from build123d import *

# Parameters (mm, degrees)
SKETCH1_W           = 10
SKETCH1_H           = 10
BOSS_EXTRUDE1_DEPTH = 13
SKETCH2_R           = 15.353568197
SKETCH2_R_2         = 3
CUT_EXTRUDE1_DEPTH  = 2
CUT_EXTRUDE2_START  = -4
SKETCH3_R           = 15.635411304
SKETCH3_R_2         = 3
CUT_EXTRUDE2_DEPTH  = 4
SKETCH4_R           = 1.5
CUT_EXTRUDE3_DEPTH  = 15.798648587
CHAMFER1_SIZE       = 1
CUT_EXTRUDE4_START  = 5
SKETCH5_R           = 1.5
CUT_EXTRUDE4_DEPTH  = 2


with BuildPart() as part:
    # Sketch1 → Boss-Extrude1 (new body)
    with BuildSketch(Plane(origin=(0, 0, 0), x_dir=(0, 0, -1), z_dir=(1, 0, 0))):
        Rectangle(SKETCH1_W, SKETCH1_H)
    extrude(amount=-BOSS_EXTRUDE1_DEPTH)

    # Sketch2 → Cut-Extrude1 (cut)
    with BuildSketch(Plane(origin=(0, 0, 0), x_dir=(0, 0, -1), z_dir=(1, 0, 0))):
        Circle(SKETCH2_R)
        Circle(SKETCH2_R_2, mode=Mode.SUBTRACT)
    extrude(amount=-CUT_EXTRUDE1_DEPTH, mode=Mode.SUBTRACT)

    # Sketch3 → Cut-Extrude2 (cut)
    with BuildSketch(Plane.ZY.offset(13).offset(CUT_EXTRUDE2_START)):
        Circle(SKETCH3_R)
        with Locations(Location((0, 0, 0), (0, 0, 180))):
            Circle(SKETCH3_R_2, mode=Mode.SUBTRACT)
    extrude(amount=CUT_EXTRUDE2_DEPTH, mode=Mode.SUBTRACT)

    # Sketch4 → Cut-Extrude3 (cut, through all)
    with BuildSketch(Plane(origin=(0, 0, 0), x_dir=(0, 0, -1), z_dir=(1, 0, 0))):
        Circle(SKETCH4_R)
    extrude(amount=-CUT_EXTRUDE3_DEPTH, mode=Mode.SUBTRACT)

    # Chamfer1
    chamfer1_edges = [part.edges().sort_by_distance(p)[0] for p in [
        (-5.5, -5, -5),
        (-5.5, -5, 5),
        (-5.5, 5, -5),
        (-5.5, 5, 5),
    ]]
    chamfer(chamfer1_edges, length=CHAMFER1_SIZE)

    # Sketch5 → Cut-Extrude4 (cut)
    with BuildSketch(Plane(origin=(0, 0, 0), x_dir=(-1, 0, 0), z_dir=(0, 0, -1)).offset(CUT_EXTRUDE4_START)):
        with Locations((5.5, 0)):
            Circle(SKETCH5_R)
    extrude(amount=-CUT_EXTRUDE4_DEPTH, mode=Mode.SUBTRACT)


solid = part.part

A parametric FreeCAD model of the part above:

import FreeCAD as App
import Part
import Sketcher

V = App.Vector


def edges_at(feature, points):
    """Names of the edges that pass closest to the given points."""
    edges = feature.Shape.Edges
    near = lambda p: min(range(len(edges)), key=lambda i: edges[i].distToShape(Part.Vertex(*p))[0])
    return sorted({f"Edge{near(p) + 1}" for p in points})

doc = App.newDocument("Part")
body = doc.addObject("PartDesign::Body", "Body")

# Sketch on YZ plane
sketch1 = body.newObject("Sketcher::SketchObject", "Sketch")
sketch1.AttachmentSupport = (doc.getObject("YZ_Plane"), [""])
sketch1.MapMode = "FlatFace"
sketch1.addGeometry([
    Part.LineSegment(V(5, 5, 0), V(-5, 5, 0)),
    Part.LineSegment(V(-5, 5, 0), V(-5, -5, 0)),
    Part.LineSegment(V(-5, -5, 0), V(5, -5, 0)),
    Part.LineSegment(V(5, -5, 0), V(5, 5, 0)),
], False)
sketch1.addConstraint([
    Sketcher.Constraint("Coincident", 0, 2, 1, 1),
    Sketcher.Constraint("Coincident", 1, 2, 2, 1),
    Sketcher.Constraint("Coincident", 2, 2, 3, 1),
    Sketcher.Constraint("Coincident", 3, 2, 0, 1),
    Sketcher.Constraint("Horizontal", 0),
    Sketcher.Constraint("Vertical", 1),
    Sketcher.Constraint("Horizontal", 2),
    Sketcher.Constraint("Vertical", 3),
    Sketcher.Constraint("Symmetric", 0, 2, 2, 2, -1, 1),
    Sketcher.Constraint("Equal", 2, 1),
    Sketcher.Constraint("DistanceX", 0, 2, 0, 1, 10.0),
])
pad1 = body.newObject("PartDesign::Pad", "Pad")
pad1.Profile = sketch1
pad1.Length = 13
pad1.Reversed = True

# Sketch on YZ plane
sketch2 = body.newObject("Sketcher::SketchObject", "Sketch001")
sketch2.AttachmentSupport = (doc.getObject("YZ_Plane"), [""])
sketch2.MapMode = "FlatFace"
sketch2.addGeometry([
    Part.Circle(V(0, 0, 0), V(0, 0, 1), 15.353568),
    Part.Circle(V(0, 0, 0), V(0, 0, 1), 3),
], False)
sketch2.addConstraint([
    Sketcher.Constraint("Coincident", 0, 3, -1, 1),
    Sketcher.Constraint("Coincident", 1, 3, -1, 1),
    Sketcher.Constraint("Diameter", 1, 6.0),
    Sketcher.Constraint("Diameter", 0, 30.707136),
])
pocket1 = body.newObject("PartDesign::Pocket", "Pocket")
pocket1.Profile = sketch2
pocket1.Length = 2

# Sketch on YZ plane
sketch3 = body.newObject("Sketcher::SketchObject", "Sketch002")
sketch3.AttachmentSupport = (doc.getObject("YZ_Plane"), [""])
sketch3.MapMode = "FlatFace"
sketch3.AttachmentOffset = App.Placement(V(0, 0, -9), App.Rotation())
sketch3.addGeometry([
    Part.Circle(V(0, 0, 0), V(0, 0, 1), 15.635411),
    Part.Circle(V(0, 0, 0), V(0, 0, 1), 3),
], False)
sketch3.addConstraint([
    Sketcher.Constraint("Coincident", 0, 3, -1, 1),
    Sketcher.Constraint("Coincident", 1, 3, -1, 1),
    Sketcher.Constraint("Diameter", 1, 6.0),
    Sketcher.Constraint("Diameter", 0, 31.270823),
])
pocket2 = body.newObject("PartDesign::Pocket", "Pocket001")
pocket2.Profile = sketch3
pocket2.Length = 4

# Sketch on YZ plane
sketch4 = body.newObject("Sketcher::SketchObject", "Sketch003")
sketch4.AttachmentSupport = (doc.getObject("YZ_Plane"), [""])
sketch4.MapMode = "FlatFace"
sketch4.addGeometry(Part.Circle(V(0, 0, 0), V(0, 0, 1), 1.5), False)
sketch4.addConstraint([
    Sketcher.Constraint("Coincident", 0, 3, -1, 1),
    Sketcher.Constraint("Diameter", 0, 3.0),
])
pocket3 = body.newObject("PartDesign::Pocket", "Pocket002")
pocket3.Profile = sketch4
pocket3.Type = "ThroughAll"
doc.recompute()

chamfer = body.newObject("PartDesign::Chamfer", "Chamfer")
chamfer.Base = (pocket3, edges_at(pocket3, [
    (-5.5, -5, -5),
    (-5.5, -5, 5),
    (-5.5, 5, -5),
    (-5.5, 5, 5),
]))
chamfer.Size = 1

# Sketch on XY plane
sketch5 = body.newObject("Sketcher::SketchObject", "Sketch004")
sketch5.AttachmentSupport = (doc.getObject("XY_Plane"), [""])
sketch5.MapMode = "FlatFace"
sketch5.AttachmentOffset = App.Placement(V(0, 0, -5), App.Rotation())
sketch5.addGeometry(Part.Circle(V(-5.5, 0, 0), V(0, 0, 1), 1.5), False)
sketch5.addConstraint([
    Sketcher.Constraint("PointOnObject", 0, 3, -1),
    Sketcher.Constraint("Diameter", 0, 3.0),
    Sketcher.Constraint("DistanceX", 0, 3, -1, 1, 5.5),
])
pocket4 = body.newObject("PartDesign::Pocket", "Pocket003")
pocket4.Profile = sketch5
pocket4.Length = 2
pocket4.Reversed = True

doc.recompute()
